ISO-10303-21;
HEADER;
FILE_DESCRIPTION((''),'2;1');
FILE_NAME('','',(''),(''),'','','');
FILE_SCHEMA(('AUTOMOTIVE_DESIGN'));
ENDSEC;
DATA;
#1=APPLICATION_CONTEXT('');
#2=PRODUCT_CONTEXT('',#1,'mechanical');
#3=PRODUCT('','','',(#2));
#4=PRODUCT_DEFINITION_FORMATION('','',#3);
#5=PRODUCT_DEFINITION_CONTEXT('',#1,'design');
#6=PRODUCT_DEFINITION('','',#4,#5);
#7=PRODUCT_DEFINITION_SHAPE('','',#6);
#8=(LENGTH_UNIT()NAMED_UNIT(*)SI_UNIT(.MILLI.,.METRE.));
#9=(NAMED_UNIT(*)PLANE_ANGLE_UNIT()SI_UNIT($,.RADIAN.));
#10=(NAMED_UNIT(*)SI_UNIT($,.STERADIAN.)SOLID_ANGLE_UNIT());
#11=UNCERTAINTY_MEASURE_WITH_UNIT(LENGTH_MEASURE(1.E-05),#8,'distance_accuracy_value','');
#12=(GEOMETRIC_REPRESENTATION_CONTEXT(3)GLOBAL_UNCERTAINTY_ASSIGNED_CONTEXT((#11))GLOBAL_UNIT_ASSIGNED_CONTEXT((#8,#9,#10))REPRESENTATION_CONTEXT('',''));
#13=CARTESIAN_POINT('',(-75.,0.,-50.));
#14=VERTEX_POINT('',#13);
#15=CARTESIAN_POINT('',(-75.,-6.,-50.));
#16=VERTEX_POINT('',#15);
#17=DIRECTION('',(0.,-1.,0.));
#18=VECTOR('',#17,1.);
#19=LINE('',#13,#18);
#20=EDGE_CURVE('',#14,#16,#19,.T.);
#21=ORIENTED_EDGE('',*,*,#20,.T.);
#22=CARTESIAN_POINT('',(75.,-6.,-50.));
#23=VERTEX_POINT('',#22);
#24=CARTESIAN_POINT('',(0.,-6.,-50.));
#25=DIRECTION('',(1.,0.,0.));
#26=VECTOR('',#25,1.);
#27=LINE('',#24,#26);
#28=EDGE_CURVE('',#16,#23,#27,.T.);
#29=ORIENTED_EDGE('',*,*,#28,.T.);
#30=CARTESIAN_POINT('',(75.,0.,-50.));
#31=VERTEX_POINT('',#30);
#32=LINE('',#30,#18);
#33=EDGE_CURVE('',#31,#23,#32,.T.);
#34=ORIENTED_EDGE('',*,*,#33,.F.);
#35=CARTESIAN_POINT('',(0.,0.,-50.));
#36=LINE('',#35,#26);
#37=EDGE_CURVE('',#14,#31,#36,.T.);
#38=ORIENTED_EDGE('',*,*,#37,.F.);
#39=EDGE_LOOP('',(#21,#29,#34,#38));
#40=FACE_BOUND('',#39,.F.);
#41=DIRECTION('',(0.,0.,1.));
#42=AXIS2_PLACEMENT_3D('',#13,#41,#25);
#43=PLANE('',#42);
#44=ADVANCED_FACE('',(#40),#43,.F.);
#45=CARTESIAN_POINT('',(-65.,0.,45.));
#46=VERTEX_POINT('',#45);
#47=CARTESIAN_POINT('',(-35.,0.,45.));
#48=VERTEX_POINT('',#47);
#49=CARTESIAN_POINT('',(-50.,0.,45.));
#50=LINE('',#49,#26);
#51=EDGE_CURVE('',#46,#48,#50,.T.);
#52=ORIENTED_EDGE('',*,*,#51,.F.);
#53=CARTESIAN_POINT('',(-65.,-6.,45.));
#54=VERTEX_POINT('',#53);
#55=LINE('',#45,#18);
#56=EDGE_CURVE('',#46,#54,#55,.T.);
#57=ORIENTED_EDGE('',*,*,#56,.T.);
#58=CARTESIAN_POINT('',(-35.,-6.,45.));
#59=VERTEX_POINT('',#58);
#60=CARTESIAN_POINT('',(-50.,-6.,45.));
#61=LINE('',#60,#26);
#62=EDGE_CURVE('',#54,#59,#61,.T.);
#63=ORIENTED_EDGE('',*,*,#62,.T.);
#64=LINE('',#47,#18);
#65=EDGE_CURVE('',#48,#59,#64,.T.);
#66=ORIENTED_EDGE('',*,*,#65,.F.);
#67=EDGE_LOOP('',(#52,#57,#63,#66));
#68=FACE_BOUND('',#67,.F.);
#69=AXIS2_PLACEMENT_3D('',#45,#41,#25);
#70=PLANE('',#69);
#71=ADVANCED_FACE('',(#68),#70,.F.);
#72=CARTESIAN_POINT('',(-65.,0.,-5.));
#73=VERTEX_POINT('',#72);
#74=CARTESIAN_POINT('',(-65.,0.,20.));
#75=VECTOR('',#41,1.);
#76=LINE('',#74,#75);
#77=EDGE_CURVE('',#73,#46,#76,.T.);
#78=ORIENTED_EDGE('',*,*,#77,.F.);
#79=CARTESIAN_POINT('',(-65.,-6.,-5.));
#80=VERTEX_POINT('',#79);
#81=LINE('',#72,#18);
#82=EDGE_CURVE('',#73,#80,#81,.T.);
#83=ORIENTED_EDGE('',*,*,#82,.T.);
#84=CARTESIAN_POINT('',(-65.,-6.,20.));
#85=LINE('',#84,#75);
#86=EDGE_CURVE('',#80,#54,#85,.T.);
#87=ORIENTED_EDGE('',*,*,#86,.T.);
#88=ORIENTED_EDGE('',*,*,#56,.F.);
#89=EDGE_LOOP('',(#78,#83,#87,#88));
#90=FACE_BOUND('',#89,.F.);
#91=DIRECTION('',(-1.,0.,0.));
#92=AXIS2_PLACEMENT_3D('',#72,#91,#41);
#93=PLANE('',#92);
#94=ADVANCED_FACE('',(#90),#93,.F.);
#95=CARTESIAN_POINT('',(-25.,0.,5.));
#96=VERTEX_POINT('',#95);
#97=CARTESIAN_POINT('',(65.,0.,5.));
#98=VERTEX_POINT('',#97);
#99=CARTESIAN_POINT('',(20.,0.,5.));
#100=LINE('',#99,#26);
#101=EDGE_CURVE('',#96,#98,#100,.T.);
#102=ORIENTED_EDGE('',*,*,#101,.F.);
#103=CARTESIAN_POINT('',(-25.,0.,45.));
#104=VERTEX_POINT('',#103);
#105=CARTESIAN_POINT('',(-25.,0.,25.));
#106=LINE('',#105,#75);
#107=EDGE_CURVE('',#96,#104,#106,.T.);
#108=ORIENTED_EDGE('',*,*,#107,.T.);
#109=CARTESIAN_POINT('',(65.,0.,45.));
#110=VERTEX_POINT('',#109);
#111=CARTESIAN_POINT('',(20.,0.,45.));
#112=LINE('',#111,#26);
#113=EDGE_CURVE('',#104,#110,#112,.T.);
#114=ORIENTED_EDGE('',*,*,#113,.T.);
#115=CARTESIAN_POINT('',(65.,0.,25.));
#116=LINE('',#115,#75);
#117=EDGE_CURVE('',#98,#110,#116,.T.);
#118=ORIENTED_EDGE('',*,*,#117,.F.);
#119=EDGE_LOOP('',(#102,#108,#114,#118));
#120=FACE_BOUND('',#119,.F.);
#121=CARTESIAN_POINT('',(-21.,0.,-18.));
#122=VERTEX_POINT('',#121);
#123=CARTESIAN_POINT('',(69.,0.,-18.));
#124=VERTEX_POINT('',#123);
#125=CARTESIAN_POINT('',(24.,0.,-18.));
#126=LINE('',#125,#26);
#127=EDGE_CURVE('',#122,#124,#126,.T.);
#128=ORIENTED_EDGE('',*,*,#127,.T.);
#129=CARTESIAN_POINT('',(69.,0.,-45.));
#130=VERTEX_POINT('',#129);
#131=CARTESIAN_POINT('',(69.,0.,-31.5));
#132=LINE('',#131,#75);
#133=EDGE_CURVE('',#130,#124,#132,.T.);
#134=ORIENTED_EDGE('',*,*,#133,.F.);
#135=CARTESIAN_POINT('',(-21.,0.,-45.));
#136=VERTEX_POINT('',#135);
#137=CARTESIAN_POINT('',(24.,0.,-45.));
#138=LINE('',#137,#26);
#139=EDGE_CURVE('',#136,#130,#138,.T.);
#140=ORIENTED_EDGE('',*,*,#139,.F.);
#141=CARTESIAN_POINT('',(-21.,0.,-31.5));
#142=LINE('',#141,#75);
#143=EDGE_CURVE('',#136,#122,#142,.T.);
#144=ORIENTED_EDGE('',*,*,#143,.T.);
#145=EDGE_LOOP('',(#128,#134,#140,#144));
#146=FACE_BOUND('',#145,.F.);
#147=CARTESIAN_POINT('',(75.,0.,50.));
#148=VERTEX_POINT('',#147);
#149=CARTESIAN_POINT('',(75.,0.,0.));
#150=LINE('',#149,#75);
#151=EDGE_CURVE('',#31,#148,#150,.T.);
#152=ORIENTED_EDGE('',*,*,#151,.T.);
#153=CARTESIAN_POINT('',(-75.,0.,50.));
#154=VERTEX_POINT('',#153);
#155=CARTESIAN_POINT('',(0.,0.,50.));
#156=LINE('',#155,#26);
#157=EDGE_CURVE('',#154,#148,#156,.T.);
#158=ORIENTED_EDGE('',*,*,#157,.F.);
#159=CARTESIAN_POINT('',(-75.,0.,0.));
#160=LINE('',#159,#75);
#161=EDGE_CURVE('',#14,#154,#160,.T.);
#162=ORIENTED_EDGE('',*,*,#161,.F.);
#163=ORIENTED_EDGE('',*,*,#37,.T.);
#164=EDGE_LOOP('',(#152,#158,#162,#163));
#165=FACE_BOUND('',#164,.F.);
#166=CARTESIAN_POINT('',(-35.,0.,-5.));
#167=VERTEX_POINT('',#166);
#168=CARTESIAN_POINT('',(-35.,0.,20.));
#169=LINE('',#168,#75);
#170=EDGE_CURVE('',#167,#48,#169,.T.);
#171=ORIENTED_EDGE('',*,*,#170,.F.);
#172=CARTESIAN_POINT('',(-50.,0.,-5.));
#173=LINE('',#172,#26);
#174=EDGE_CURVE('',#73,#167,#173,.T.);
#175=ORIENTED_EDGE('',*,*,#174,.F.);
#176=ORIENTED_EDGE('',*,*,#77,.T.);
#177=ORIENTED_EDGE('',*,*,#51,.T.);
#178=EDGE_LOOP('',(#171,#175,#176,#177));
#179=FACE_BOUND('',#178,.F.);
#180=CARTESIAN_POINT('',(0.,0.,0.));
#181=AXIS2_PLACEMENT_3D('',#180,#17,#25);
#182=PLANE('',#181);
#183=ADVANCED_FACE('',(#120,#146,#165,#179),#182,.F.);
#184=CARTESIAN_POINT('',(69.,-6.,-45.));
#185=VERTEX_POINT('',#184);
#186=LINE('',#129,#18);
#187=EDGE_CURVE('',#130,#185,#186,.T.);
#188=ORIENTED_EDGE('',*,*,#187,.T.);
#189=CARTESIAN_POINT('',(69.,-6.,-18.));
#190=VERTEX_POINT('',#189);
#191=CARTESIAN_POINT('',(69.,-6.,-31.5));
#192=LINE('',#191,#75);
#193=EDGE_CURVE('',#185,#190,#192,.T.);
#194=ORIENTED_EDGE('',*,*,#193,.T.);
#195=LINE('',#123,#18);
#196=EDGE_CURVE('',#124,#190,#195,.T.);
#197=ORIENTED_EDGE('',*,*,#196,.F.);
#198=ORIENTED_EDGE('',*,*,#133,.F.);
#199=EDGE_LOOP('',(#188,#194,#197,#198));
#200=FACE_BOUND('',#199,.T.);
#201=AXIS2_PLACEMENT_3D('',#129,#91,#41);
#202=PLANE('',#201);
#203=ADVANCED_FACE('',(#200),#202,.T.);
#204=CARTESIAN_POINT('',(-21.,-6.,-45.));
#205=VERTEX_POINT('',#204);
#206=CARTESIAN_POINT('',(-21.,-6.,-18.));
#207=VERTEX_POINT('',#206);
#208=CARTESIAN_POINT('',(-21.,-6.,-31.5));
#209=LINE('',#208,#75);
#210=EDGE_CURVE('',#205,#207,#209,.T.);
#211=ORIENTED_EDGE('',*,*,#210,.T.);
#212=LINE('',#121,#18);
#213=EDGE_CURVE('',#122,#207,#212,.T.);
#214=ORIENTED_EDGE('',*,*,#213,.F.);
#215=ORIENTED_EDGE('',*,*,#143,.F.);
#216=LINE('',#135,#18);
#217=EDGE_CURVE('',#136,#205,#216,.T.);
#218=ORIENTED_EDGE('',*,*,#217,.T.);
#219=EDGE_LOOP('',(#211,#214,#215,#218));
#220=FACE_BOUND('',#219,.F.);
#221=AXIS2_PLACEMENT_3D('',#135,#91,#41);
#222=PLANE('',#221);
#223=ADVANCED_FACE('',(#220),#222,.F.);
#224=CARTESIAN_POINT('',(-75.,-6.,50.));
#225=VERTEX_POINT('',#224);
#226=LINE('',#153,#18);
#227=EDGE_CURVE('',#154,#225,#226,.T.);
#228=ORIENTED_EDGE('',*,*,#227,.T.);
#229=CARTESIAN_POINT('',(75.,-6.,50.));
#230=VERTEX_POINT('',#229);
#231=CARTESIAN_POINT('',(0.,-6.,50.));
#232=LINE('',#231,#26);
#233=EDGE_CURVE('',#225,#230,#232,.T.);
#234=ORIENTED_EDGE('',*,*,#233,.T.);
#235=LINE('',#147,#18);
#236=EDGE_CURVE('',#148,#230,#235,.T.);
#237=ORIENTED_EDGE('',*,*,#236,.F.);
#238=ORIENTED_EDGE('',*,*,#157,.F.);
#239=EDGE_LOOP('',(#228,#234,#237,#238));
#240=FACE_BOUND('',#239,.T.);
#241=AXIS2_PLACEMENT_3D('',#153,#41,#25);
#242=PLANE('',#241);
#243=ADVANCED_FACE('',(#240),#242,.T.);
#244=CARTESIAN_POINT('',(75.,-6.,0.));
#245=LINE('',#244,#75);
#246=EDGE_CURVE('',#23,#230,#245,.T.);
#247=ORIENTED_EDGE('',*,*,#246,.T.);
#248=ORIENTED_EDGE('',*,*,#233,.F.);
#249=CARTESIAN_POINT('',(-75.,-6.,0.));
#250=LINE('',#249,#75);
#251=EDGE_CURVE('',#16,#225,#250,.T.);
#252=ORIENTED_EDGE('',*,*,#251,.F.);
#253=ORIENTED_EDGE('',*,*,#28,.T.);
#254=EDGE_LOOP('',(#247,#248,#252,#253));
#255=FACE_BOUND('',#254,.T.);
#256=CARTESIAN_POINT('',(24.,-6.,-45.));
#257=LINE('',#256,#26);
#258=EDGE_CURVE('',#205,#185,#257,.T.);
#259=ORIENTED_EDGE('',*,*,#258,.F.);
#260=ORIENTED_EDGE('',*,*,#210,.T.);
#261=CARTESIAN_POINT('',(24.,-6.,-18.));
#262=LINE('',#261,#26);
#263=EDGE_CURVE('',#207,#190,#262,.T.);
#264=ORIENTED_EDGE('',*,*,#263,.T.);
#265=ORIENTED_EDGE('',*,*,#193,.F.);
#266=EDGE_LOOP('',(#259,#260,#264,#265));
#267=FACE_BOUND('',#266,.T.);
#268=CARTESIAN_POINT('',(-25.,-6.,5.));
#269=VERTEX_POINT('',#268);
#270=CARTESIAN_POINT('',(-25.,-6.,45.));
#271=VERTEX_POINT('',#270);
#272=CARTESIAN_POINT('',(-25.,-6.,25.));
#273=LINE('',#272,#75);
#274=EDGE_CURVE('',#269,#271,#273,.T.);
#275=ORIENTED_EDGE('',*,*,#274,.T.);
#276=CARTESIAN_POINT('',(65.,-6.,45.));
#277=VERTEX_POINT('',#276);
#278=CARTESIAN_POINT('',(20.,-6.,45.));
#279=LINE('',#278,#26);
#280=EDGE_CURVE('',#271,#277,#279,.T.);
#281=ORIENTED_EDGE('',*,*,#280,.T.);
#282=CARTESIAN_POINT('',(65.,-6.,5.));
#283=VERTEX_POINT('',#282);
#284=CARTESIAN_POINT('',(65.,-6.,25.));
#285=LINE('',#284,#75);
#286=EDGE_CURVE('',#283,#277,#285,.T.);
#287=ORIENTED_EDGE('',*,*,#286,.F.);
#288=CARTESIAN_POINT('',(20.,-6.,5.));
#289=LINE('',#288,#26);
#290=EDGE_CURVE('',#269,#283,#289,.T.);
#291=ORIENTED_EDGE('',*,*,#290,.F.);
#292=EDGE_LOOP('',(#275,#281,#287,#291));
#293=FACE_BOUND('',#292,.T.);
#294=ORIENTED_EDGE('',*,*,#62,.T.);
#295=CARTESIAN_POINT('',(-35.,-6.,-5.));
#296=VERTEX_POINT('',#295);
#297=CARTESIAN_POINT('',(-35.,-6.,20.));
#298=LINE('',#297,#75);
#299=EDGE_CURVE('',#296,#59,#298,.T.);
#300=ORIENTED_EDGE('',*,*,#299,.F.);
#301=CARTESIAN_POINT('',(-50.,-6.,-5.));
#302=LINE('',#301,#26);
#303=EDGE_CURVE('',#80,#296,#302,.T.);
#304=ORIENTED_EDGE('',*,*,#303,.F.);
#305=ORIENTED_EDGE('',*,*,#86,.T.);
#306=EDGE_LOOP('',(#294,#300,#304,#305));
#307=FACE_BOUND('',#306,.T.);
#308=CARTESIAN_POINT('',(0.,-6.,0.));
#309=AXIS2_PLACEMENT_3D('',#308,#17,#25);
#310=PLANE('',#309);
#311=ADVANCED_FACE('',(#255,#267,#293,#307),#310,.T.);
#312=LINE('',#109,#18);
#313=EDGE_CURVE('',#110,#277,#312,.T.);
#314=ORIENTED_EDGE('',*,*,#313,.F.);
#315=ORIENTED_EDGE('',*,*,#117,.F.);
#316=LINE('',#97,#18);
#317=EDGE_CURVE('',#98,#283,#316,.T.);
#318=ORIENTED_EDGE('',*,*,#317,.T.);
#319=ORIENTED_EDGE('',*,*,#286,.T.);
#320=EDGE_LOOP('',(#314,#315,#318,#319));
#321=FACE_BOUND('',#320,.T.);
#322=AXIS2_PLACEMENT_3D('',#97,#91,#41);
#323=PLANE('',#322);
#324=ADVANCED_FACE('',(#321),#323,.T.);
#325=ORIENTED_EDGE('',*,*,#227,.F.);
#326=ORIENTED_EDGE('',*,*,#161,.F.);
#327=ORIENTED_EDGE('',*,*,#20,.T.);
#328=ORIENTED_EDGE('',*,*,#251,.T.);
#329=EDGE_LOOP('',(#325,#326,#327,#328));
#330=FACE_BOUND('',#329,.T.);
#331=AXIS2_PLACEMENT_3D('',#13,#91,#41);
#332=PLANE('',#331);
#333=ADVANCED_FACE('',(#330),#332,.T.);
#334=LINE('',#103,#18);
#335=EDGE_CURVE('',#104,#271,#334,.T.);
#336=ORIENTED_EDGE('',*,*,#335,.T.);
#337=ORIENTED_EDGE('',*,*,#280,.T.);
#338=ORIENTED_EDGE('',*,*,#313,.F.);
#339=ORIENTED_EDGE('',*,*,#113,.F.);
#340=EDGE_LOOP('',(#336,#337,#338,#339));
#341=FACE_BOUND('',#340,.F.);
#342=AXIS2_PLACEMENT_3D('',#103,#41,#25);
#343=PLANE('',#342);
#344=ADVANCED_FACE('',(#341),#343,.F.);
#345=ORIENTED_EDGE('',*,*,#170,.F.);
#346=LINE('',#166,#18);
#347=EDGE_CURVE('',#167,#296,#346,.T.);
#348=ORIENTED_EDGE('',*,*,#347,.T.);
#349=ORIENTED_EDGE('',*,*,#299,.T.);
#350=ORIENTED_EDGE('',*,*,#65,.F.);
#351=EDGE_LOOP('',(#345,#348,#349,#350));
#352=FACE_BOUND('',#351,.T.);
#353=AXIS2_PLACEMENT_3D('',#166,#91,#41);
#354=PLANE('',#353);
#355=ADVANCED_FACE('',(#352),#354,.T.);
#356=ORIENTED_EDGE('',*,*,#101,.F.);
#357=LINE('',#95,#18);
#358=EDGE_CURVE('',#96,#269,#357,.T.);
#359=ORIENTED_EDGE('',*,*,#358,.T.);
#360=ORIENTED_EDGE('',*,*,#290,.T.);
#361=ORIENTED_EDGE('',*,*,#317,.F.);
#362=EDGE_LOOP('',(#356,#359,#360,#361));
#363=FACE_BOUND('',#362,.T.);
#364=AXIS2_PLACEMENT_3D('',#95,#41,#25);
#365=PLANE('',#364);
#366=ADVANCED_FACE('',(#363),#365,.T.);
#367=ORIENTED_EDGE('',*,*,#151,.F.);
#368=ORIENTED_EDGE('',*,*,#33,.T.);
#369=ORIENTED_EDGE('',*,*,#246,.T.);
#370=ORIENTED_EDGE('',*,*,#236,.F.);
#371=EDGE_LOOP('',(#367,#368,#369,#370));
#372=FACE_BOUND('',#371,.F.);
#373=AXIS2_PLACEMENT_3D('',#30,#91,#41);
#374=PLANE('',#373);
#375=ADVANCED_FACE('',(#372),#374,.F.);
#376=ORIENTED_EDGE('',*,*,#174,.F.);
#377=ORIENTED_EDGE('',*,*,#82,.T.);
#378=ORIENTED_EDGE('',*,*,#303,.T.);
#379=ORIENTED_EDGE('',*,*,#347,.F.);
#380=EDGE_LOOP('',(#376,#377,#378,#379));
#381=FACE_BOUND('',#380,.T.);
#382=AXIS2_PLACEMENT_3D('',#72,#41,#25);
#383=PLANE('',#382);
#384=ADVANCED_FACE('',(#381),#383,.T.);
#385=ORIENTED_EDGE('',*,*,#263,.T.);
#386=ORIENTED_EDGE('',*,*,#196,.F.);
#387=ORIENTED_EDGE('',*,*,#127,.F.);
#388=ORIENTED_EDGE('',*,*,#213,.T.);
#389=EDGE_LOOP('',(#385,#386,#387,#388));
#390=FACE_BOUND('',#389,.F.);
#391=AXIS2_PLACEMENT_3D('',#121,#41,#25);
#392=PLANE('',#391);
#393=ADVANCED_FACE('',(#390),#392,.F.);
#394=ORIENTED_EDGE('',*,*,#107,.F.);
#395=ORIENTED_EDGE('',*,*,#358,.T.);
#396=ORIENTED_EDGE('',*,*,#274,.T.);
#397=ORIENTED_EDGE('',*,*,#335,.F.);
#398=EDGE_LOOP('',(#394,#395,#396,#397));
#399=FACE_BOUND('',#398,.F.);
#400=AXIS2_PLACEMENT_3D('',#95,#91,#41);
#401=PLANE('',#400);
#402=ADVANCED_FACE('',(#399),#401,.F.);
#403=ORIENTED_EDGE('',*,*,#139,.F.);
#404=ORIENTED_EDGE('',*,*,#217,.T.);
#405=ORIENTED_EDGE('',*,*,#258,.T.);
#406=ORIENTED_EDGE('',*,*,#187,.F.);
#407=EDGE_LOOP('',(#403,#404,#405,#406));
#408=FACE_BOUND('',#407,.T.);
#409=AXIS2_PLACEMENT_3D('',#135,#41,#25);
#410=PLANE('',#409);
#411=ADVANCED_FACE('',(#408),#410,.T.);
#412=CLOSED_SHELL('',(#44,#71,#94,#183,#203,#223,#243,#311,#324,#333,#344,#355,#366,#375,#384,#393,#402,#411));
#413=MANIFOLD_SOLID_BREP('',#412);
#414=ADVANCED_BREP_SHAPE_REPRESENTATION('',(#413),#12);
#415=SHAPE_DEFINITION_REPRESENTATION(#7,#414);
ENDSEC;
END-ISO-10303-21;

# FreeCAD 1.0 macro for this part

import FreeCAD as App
import Part
import Sketcher
from FreeCAD import Vector

doc = App.newDocument("Part")
body = doc.addObject("PartDesign::Body", "Body")

sketch1 = body.newObject("Sketcher::SketchObject", "Sketch")
sketch1.AttachmentSupport = (doc.getObject("XZ_Plane"), [""])
sketch1.MapMode = "FlatFace"
sketch1.addGeometry(Part.LineSegment(Vector(-75, 50, 0), Vector(-75, -50, 0)), False)
sketch1.addGeometry(Part.LineSegment(Vector(-75, -50, 0), Vector(75, -50, 0)), False)
sketch1.addGeometry(Part.LineSegment(Vector(75, -50, 0), Vector(75, 50, 0)), False)
sketch1.addGeometry(Part.LineSegment(Vector(75, 50, 0), Vector(-75, 50, 0)), False)
sketch1.addGeometry(Part.LineSegment(Vector(69, -45, 0), Vector(-21, -45, 0)), False)
sketch1.addGeometry(Part.LineSegment(Vector(-21, -45, 0), Vector(-21, -18, 0)), False)
sketch1.addGeometry(Part.LineSegment(Vector(-21, -18, 0), Vector(69, -18, 0)), False)
sketch1.addGeometry(Part.LineSegment(Vector(69, -18, 0), Vector(69, -45, 0)), False)
sketch1.addGeometry(Part.LineSegment(Vector(-35, -5, 0), Vector(-65, -5, 0)), False)
sketch1.addGeometry(Part.LineSegment(Vector(-65, -5, 0), Vector(-65, 45, 0)), False)
sketch1.addGeometry(Part.LineSegment(Vector(-65, 45, 0), Vector(-35, 45, 0)), False)
sketch1.addGeometry(Part.LineSegment(Vector(-35, 45, 0), Vector(-35, -5, 0)), False)
sketch1.addGeometry(Part.LineSegment(Vector(65, 5, 0), Vector(-25, 5, 0)), False)
sketch1.addGeometry(Part.LineSegment(Vector(-25, 5, 0), Vector(-25, 45, 0)), False)
sketch1.addGeometry(Part.LineSegment(Vector(-25, 45, 0), Vector(65, 45, 0)), False)
sketch1.addGeometry(Part.LineSegment(Vector(65, 45, 0), Vector(65, 5, 0)), False)
sketch1.addConstraint(Sketcher.Constraint("Coincident", 0, 2, 1, 1))
sketch1.addConstraint(Sketcher.Constraint("Coincident", 1, 2, 2, 1))
sketch1.addConstraint(Sketcher.Constraint("Coincident", 2, 2, 3, 1))
sketch1.addConstraint(Sketcher.Constraint("Coincident", 3, 2, 0, 1))
sketch1.addConstraint(Sketcher.Constraint("Coincident", 4, 2, 5, 1))
sketch1.addConstraint(Sketcher.Constraint("Coincident", 5, 2, 6, 1))
sketch1.addConstraint(Sketcher.Constraint("Coincident", 6, 2, 7, 1))
sketch1.addConstraint(Sketcher.Constraint("Coincident", 7, 2, 4, 1))
sketch1.addConstraint(Sketcher.Constraint("Coincident", 8, 2, 9, 1))
sketch1.addConstraint(Sketcher.Constraint("Coincident", 9, 2, 10, 1))
sketch1.addConstraint(Sketcher.Constraint("Coincident", 10, 2, 11, 1))
sketch1.addConstraint(Sketcher.Constraint("Coincident", 11, 2, 8, 1))
sketch1.addConstraint(Sketcher.Constraint("Coincident", 12, 2, 13, 1))
sketch1.addConstraint(Sketcher.Constraint("Coincident", 13, 2, 14, 1))
sketch1.addConstraint(Sketcher.Constraint("Coincident", 14, 2, 15, 1))
sketch1.addConstraint(Sketcher.Constraint("Coincident", 15, 2, 12, 1))
sketch1.addConstraint(Sketcher.Constraint("Vertical", 0))
sketch1.addConstraint(Sketcher.Constraint("Horizontal", 1))
sketch1.addConstraint(Sketcher.Constraint("Vertical", 2))
sketch1.addConstraint(Sketcher.Constraint("Horizontal", 3))
sketch1.addConstraint(Sketcher.Constraint("Horizontal", 4))
sketch1.addConstraint(Sketcher.Constraint("Vertical", 5))
sketch1.addConstraint(Sketcher.Constraint("Horizontal", 6))
sketch1.addConstraint(Sketcher.Constraint("Vertical", 7))
sketch1.addConstraint(Sketcher.Constraint("Horizontal", 8))
sketch1.addConstraint(Sketcher.Constraint("Vertical", 9))
sketch1.addConstraint(Sketcher.Constraint("Horizontal", 10))
sketch1.addConstraint(Sketcher.Constraint("Vertical", 11))
sketch1.addConstraint(Sketcher.Constraint("Horizontal", 12))
sketch1.addConstraint(Sketcher.Constraint("Vertical", 13))
sketch1.addConstraint(Sketcher.Constraint("Horizontal", 14))
sketch1.addConstraint(Sketcher.Constraint("Vertical", 15))
sketch1.addConstraint(Sketcher.Constraint("Symmetric", 0, 2, 2, 2, -1, 1))
sketch1.addConstraint(Sketcher.Constraint("Symmetric", 8, 2, 15, 2, -1, 1))
sketch1.addConstraint(Sketcher.Constraint("Horizontal", 10, 2, 13, 2))
sketch1.addConstraint(Sketcher.Constraint("Equal", 6, 12))
sketch1.addConstraint(Sketcher.Constraint("DistanceX", 1, 1, 1, 2, 150.0))
sketch1.addConstraint(Sketcher.Constraint("DistanceX", 4, 2, 4, 1, 90.0))
sketch1.addConstraint(Sketcher.Constraint("DistanceX", 8, 2, 8, 1, 30.0))
sketch1.addConstraint(Sketcher.Constraint("DistanceY", 0, 2, 0, 1, 100.0))
sketch1.addConstraint(Sketcher.Constraint("DistanceY", 5, 1, 5, 2, 27.0))
sketch1.addConstraint(Sketcher.Constraint("DistanceY", 9, 1, 9, 2, 50.0))
sketch1.addConstraint(Sketcher.Constraint("DistanceY", 13, 1, 13, 2, 40.0))
sketch1.addConstraint(Sketcher.Constraint("DistanceX", 4, 2, -1, 1, 21.0))
sketch1.addConstraint(Sketcher.Constraint("DistanceY", 4, 2, -1, 1, 45.0))
sketch1.addConstraint(Sketcher.Constraint("DistanceX", 8, 2, -1, 1, 65.0))
pad1 = body.newObject("PartDesign::Pad", "Pad")
pad1.Profile = sketch1
pad1.Length = 6

doc.recompute()
